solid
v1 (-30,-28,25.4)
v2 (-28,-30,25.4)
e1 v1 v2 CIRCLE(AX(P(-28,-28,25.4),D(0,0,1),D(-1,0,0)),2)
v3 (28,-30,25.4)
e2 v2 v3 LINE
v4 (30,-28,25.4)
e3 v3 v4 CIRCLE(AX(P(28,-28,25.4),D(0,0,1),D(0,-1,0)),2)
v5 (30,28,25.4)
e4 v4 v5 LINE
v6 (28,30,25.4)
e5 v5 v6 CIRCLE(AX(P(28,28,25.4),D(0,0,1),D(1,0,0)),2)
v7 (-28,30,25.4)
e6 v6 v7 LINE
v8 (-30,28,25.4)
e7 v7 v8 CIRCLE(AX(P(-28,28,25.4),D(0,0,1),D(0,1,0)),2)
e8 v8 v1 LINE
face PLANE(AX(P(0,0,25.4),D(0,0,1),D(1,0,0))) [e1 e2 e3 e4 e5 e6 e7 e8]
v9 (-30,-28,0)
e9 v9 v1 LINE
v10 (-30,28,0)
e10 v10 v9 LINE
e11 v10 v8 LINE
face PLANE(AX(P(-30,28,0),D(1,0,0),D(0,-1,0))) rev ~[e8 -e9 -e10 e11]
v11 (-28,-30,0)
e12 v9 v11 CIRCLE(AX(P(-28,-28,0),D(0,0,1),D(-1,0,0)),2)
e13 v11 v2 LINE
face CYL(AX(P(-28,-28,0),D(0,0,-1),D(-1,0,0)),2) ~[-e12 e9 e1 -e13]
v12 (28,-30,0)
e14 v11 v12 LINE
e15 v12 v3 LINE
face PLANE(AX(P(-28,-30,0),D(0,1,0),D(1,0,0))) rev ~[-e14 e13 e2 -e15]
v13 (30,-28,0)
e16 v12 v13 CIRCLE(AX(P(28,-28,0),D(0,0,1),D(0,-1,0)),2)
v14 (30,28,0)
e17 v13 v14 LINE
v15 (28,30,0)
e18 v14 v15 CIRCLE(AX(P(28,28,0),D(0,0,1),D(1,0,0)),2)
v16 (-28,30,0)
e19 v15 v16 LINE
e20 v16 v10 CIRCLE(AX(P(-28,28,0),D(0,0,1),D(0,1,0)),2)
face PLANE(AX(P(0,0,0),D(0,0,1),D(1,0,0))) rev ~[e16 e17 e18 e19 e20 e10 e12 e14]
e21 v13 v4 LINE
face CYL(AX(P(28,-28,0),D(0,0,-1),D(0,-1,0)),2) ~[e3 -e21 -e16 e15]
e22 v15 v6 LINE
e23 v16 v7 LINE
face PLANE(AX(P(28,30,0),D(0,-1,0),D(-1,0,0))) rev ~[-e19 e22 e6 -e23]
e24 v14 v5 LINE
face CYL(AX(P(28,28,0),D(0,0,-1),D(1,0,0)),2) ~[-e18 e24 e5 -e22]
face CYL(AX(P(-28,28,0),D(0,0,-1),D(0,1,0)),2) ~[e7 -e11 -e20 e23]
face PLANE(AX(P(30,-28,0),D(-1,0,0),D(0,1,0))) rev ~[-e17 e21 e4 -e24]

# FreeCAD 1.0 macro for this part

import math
import FreeCAD as App
import Part
import Sketcher

doc = App.newDocument("Part")
body = doc.addObject("PartDesign::Body", "Body")

sketch1 = body.newObject("Sketcher::SketchObject", "Sketch")
sketch1.AttachmentSupport = (doc.getObject("XY_Plane"), [""])
sketch1.MapMode = "FlatFace"
sketch1.addGeometry(Part.ArcOfCircle(Part.Circle(App.Vector(28, 28, 0), App.Vector(0, 0, 1), 2), math.radians(0), math.radians(90)), False)
sketch1.addGeometry(Part.LineSegment(App.Vector(28, 30, 0), App.Vector(-28, 30, 0)), False)
sketch1.addGeometry(Part.ArcOfCircle(Part.Circle(App.Vector(-28, 28, 0), App.Vector(0, 0, 1), 2), math.radians(90), math.radians(180)), False)
sketch1.addGeometry(Part.LineSegment(App.Vector(-30, 28, 0), App.Vector(-30, -28, 0)), False)
sketch1.addGeometry(Part.ArcOfCircle(Part.Circle(App.Vector(-28, -28, 0), App.Vector(0, 0, 1), 2), math.radians(180), math.radians(270)), False)
sketch1.addGeometry(Part.LineSegment(App.Vector(-28, -30, 0), App.Vector(28, -30, 0)), False)
sketch1.addGeometry(Part.ArcOfCircle(Part.Circle(App.Vector(28, -28, 0), App.Vector(0, 0, 1), 2), math.radians(-90), math.radians(0)), False)
sketch1.addGeometry(Part.LineSegment(App.Vector(30, -28, 0), App.Vector(30, 28, 0)), False)
sketch1.addConstraint(Sketcher.Constraint("Tangent", 0, 2, 1, 1))
sketch1.addConstraint(Sketcher.Constraint("Tangent", 1, 2, 2, 1))
sketch1.addConstraint(Sketcher.Constraint("Tangent", 2, 2, 3, 1))
sketch1.addConstraint(Sketcher.Constraint("Tangent", 3, 2, 4, 1))
sketch1.addConstraint(Sketcher.Constraint("Tangent", 4, 2, 5, 1))
sketch1.addConstraint(Sketcher.Constraint("Tangent", 5, 2, 6, 1))
sketch1.addConstraint(Sketcher.Constraint("Tangent", 6, 2, 7, 1))
sketch1.addConstraint(Sketcher.Constraint("Tangent", 7, 2, 0, 1))
sketch1.addConstraint(Sketcher.Constraint("Horizontal", 1))
sketch1.addConstraint(Sketcher.Constraint("Vertical", 3))
sketch1.addConstraint(Sketcher.Constraint("Horizontal", 5))
sketch1.addConstraint(Sketcher.Constraint("Vertical", 7))
sketch1.addConstraint(Sketcher.Constraint("Equal", 0, 2))
sketch1.addConstraint(Sketcher.Constraint("Equal", 2, 4))
sketch1.addConstraint(Sketcher.Constraint("Equal", 4, 6))
sketch1.addConstraint(Sketcher.Constraint("Symmetric", 0, 3, 4, 3, -1, 1))
sketch1.addConstraint(Sketcher.Constraint("Equal", 5, 3))
sketch1.addConstraint(Sketcher.Constraint("Radius", 0, 2.0))
sketch1.addConstraint(Sketcher.Constraint("DistanceX", 1, 2, 1, 1, 56.0))
pad1 = body.newObject("PartDesign::Pad", "Pad")
pad1.Profile = sketch1
pad1.Length = 25.4

doc.recompute()
